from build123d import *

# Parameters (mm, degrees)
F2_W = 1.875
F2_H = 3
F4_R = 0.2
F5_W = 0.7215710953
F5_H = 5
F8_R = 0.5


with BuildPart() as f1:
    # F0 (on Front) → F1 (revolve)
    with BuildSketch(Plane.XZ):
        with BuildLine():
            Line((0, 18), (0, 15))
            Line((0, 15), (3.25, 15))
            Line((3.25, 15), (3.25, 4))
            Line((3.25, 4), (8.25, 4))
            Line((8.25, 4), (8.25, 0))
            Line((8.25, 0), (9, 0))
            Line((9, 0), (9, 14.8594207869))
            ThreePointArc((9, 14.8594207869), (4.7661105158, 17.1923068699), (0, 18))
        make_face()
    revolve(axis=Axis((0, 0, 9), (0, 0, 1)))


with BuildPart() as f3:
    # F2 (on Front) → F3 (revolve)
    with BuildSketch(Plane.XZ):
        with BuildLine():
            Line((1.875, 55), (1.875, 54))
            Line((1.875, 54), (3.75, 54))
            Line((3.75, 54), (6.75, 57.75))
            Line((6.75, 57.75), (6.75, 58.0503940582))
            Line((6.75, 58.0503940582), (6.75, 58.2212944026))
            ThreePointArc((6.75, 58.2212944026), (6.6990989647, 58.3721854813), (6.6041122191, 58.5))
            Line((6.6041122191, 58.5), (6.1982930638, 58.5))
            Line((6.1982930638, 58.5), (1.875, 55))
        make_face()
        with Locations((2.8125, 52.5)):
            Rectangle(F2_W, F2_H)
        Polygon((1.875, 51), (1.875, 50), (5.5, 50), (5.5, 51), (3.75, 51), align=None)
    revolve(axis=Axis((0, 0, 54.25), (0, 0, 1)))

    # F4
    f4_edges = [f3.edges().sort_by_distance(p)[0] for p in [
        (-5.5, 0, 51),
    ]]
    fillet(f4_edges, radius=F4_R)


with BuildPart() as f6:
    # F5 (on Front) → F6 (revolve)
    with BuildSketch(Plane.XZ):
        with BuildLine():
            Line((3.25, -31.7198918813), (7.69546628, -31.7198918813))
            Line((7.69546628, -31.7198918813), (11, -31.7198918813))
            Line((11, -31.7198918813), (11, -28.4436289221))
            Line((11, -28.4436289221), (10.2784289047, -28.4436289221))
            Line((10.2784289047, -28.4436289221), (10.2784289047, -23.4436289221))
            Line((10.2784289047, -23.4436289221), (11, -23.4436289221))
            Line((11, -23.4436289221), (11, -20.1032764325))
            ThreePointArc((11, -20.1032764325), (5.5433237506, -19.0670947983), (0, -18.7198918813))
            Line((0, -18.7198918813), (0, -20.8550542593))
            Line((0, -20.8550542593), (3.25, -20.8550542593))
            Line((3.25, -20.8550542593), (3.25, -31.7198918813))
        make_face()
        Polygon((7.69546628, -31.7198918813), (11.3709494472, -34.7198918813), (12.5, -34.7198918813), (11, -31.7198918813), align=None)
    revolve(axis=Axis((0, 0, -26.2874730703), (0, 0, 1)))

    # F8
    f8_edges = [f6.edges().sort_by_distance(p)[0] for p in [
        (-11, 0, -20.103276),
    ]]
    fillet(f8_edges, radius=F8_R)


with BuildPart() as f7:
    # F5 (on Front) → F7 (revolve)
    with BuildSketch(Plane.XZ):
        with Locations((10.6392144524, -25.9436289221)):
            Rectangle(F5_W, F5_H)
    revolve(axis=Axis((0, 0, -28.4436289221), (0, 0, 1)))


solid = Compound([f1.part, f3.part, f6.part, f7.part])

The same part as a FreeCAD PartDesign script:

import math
import FreeCAD as App
import Part
import Sketcher

V = App.Vector
Q = App.Units.Quantity


def edges_at(feature, points):
    """Names of the edges that pass closest to the given points."""
    edges = feature.Shape.Edges
    near = lambda p: min(range(len(edges)), key=lambda i: edges[i].distToShape(Part.Vertex(*p))[0])
    return sorted({f"Edge{near(p) + 1}" for p in points})

doc = App.newDocument("Part")
body = doc.addObject("PartDesign::Body", "Body")

# Sketch on XZ plane
sketch1 = body.newObject("Sketcher::SketchObject", "Sketch")
sketch1.AttachmentSupport = (doc.getObject("XZ_Plane"), [""])
sketch1.MapMode = "FlatFace"
sketch1.addGeometry([
    Part.LineSegment(V(0, 18, 0), V(0, 15, 0)),  # 0
    Part.LineSegment(V(0, 15, 0), V(3.25, 15, 0)),  # 1
    Part.LineSegment(V(3.25, 15, 0), V(3.25, 4, 0)),  # 2
    Part.LineSegment(V(3.25, 4, 0), V(8.25, 4, 0)),  # 3
    Part.LineSegment(V(8.25, 4, 0), V(8.25, 0, 0)),  # 4
    Part.LineSegment(V(8.25, 0, 0), V(9, 0, 0)),  # 5
    Part.LineSegment(V(9, 0, 0), V(9, 14.859421, 0)),  # 6
    Part.ArcOfCircle(Part.Circle(V(0, 3.534, 0), V(0, 0, 1), 14.466), math.radians(51.526801), math.radians(90)),  # 7
], False)
sketch1.addConstraint([
    Sketcher.Constraint("Coincident", 0, 2, 1, 1),
    Sketcher.Constraint("Coincident", 1, 2, 2, 1),
    Sketcher.Constraint("Coincident", 2, 2, 3, 1),
    Sketcher.Constraint("Coincident", 3, 2, 4, 1),
    Sketcher.Constraint("Coincident", 4, 2, 5, 1),
    Sketcher.Constraint("Coincident", 5, 2, 6, 1),
    Sketcher.Constraint("Coincident", 6, 2, 7, 1),
    Sketcher.Constraint("Coincident", 7, 2, 0, 1),
    Sketcher.Constraint("Vertical", 0),
    Sketcher.Constraint("Horizontal", 1),
    Sketcher.Constraint("Vertical", 2),
    Sketcher.Constraint("Horizontal", 3),
    Sketcher.Constraint("Vertical", 4),
    Sketcher.Constraint("Horizontal", 5),
    Sketcher.Constraint("Vertical", 6),
    Sketcher.Constraint("PointOnObject", 7, 3, -2),
    Sketcher.Constraint("PointOnObject", 0, 2, -2),
    Sketcher.Constraint("PointOnObject", 4, 2, -1),
    Sketcher.Constraint("DistanceX", 3, 1, 3, 2, Q("5 mm")),
    Sketcher.Constraint("DistanceY", 0, 2, 0, 1, Q("3 mm")),
    Sketcher.Constraint("DistanceY", 2, 2, 2, 1, Q("11 mm")),
    Sketcher.Constraint("DistanceY", 4, 2, 4, 1, Q("4 mm")),
    Sketcher.Constraint("DistanceX", -1, 1, 5, 2, Q("9 mm")),
    Sketcher.Constraint("Radius", 7, Q("14.466 mm")),
    Sketcher.Constraint("DistanceX", 1, 1, 1, 2, Q("3.25 mm")),
])
revolution = body.newObject("PartDesign::Revolution", "Revolution")
revolution.Profile = sketch1
revolution.ReferenceAxis = (sketch1, ["V_Axis"])
revolution.Angle = 360
body2 = doc.addObject("PartDesign::Body", "Body001")

# Sketch on XZ plane
sketch2 = body2.newObject("Sketcher::SketchObject", "Sketch001")
sketch2.AttachmentSupport = (doc.getObject("XZ_Plane001"), [""])
sketch2.MapMode = "FlatFace"
sketch2.addGeometry([
    Part.LineSegment(V(1.875, 55, 0), V(1.875, 50, 0)),  # 0
    Part.LineSegment(V(1.875, 50, 0), V(5.5, 50, 0)),  # 1
    Part.LineSegment(V(5.5, 50, 0), V(5.5, 51, 0)),  # 2
    Part.LineSegment(V(5.5, 51, 0), V(3.75, 51, 0)),  # 3
    Part.LineSegment(V(3.75, 51, 0), V(3.75, 54, 0)),  # 4
    Part.LineSegment(V(3.75, 54, 0), V(6.75, 57.75, 0)),  # 5
    Part.LineSegment(V(6.75, 57.75, 0), V(6.75, 58.221294, 0)),  # 6
    Part.ArcOfCircle(Part.Circle(V(6.24759, 58.135844, 0), V(0, 0, 1), 0.509625), math.radians(9.652533), math.radians(45.606871)),  # 7
    Part.LineSegment(V(6.604112, 58.5, 0), V(6.198293, 58.5, 0)),  # 8
    Part.LineSegment(V(6.198293, 58.5, 0), V(1.875, 55, 0)),  # 9
], False)
sketch2.addConstraint([
    Sketcher.Constraint("Coincident", 0, 2, 1, 1),
    Sketcher.Constraint("Coincident", 1, 2, 2, 1),
    Sketcher.Constraint("Coincident", 2, 2, 3, 1),
    Sketcher.Constraint("Coincident", 3, 2, 4, 1),
    Sketcher.Constraint("Coincident", 4, 2, 5, 1),
    Sketcher.Constraint("Coincident", 5, 2, 6, 1),
    Sketcher.Constraint("Coincident", 6, 2, 7, 1),
    Sketcher.Constraint("Coincident", 7, 2, 8, 1),
    Sketcher.Constraint("Coincident", 8, 2, 9, 1),
    Sketcher.Constraint("Coincident", 9, 2, 0, 1),
    Sketcher.Constraint("Vertical", 0),
    Sketcher.Constraint("Horizontal", 1),
    Sketcher.Constraint("Vertical", 2),
    Sketcher.Constraint("Horizontal", 3),
    Sketcher.Constraint("Vertical", 4),
    Sketcher.Constraint("Vertical", 6),
    Sketcher.Constraint("Horizontal", 8),
    Sketcher.Constraint("DistanceY", 0, 2, 0, 1, Q("5 mm")),
    Sketcher.Constraint("DistanceY", 2, 1, 2, 2, Q("1 mm")),
    Sketcher.Constraint("DistanceY", 4, 1, 4, 2, Q("3 mm")),
    Sketcher.Constraint("DistanceY", -1, 1, 0, 2, Q("50 mm")),
    Sketcher.Constraint("DistanceX", 4, 2, 5, 2, Q("3 mm")),
    Sketcher.Constraint("DistanceX", 3, 2, 3, 1, Q("1.75 mm")),
    Sketcher.Constraint("DistanceX", -1, 1, 1, 2, Q("5.5 mm")),
    Sketcher.Constraint("DistanceY", -1, 1, 7, 2, Q("58.5 mm")),
    Sketcher.Constraint("DistanceX", 1, 1, 1, 2, Q("3.625 mm")),
    Sketcher.Constraint("DistanceY", -1, 1, 5, 2, Q("57.75 mm")),
    Sketcher.Constraint("Radius", 7, Q("0.509625 mm")),
    Sketcher.Constraint("DistanceX", 8, 2, 8, 1, Q("0.405819 mm")),
    Sketcher.Constraint("Distance", 9, Q("5.562451 mm")),
    Sketcher.Constraint("DistanceY", 6, 1, 6, 2, Q("0.471294 mm")),
])
revolution2 = body2.newObject("PartDesign::Revolution", "Revolution001")
revolution2.Profile = sketch2
revolution2.ReferenceAxis = (sketch2, ["V_Axis"])
revolution2.Angle = 360
doc.recompute()

fillet = body2.newObject("PartDesign::Fillet", "Fillet")
fillet.Base = (revolution2, edges_at(revolution2, [(-5.5, 0, 51)]))
fillet.Radius = 0.2
body3 = doc.addObject("PartDesign::Body", "Body002")

# Sketch on XZ plane
sketch3 = body3.newObject("Sketcher::SketchObject", "Sketch002")
sketch3.AttachmentSupport = (doc.getObject("XZ_Plane002"), [""])
sketch3.MapMode = "FlatFace"
sketch3.addGeometry([
    Part.LineSegment(V(3.25, -31.719892, 0), V(7.695466, -31.719892, 0)),  # 0
    Part.LineSegment(V(7.695466, -31.719892, 0), V(11.370949, -34.719892, 0)),  # 1
    Part.LineSegment(V(11.370949, -34.719892, 0), V(12.5, -34.719892, 0)),  # 2
    Part.LineSegment(V(12.5, -34.719892, 0), V(11, -31.719892, 0)),  # 3
    Part.LineSegment(V(11, -31.719892, 0), V(11, -28.443629, 0)),  # 4
    Part.LineSegment(V(11, -28.443629, 0), V(10.278429, -28.443629, 0)),  # 5
    Part.LineSegment(V(10.278429, -28.443629, 0), V(10.278429, -23.443629, 0)),  # 6
    Part.LineSegment(V(10.278429, -23.443629, 0), V(11, -23.443629, 0)),  # 7
    Part.LineSegment(V(11, -23.443629, 0), V(11, -20.103276, 0)),  # 8
    Part.ArcOfCircle(Part.Circle(V(0, -63.144905, 0), V(0, 0, 1), 44.425013), math.radians(75.663974), math.radians(90)),  # 9
    Part.LineSegment(V(0, -18.719892, 0), V(0, -20.855054, 0)),  # 10
    Part.LineSegment(V(0, -20.855054, 0), V(3.25, -20.855054, 0)),  # 11
    Part.LineSegment(V(3.25, -20.855054, 0), V(3.25, -31.719892, 0)),  # 12
], False)
sketch3.addConstraint([
    Sketcher.Constraint("Coincident", 0, 2, 1, 1),
    Sketcher.Constraint("Coincident", 1, 2, 2, 1),
    Sketcher.Constraint("Coincident", 2, 2, 3, 1),
    Sketcher.Constraint("Coincident", 3, 2, 4, 1),
    Sketcher.Constraint("Coincident", 4, 2, 5, 1),
    Sketcher.Constraint("Coincident", 5, 2, 6, 1),
    Sketcher.Constraint("Coincident", 6, 2, 7, 1),
    Sketcher.Constraint("Coincident", 7, 2, 8, 1),
    Sketcher.Constraint("Coincident", 8, 2, 9, 1),
    Sketcher.Constraint("Coincident", 9, 2, 10, 1),
    Sketcher.Constraint("Coincident", 10, 2, 11, 1),
    Sketcher.Constraint("Coincident", 11, 2, 12, 1),
    Sketcher.Constraint("Coincident", 12, 2, 0, 1),
    Sketcher.Constraint("Horizontal", 0),
    Sketcher.Constraint("Horizontal", 2),
    Sketcher.Constraint("Vertical", 4),
    Sketcher.Constraint("Horizontal", 5),
    Sketcher.Constraint("Vertical", 6),
    Sketcher.Constraint("Horizontal", 7),
    Sketcher.Constraint("Vertical", 8),
    Sketcher.Constraint("Vertical", 10),
    Sketcher.Constraint("Horizontal", 11),
    Sketcher.Constraint("Vertical", 12),
    Sketcher.Constraint("PointOnObject", 9, 3, -2),
    Sketcher.Constraint("PointOnObject", 9, 2, -2),
    Sketcher.Constraint("Horizontal", 0, 2, 3, 2),
    Sketcher.Constraint("Vertical", 4, 2, 7, 2),
    Sketcher.Constraint("DistanceY", 6, 1, 6, 2, Q("5 mm")),
    Sketcher.Constraint("DistanceX", -1, 1, 3, 2, Q("11 mm")),
    Sketcher.Constraint("DistanceY", 1, 2, 0, 2, Q("3 mm")),
    Sketcher.Constraint("DistanceX", 11, 1, 11, 2, Q("3.25 mm")),
    Sketcher.Constraint("DistanceX", -1, 1, 2, 2, Q("12.5 mm")),
    Sketcher.Constraint("Radius", 9, Q("44.425013 mm")),
    Sketcher.Constraint("DistanceX", 2, 1, 2, 2, Q("1.129051 mm")),
    Sketcher.Constraint("DistanceX", 5, 2, 5, 1, Q("0.721571 mm")),
    Sketcher.Constraint("DistanceX", 0, 1, 0, 2, Q("4.445466 mm")),
    Sketcher.Constraint("DistanceY", 4, 1, 4, 2, Q("3.276263 mm")),
    Sketcher.Constraint("DistanceY", 8, 1, 8, 2, Q("3.340352 mm")),
    Sketcher.Constraint("DistanceY", 10, 2, 10, 1, Q("2.135162 mm")),
    Sketcher.Constraint("DistanceY", 0, 2, -1, 1, Q("31.719892 mm")),
])
revolution3 = body3.newObject("PartDesign::Revolution", "Revolution002")
revolution3.Profile = sketch3
revolution3.ReferenceAxis = (sketch3, ["V_Axis"])
revolution3.Angle = 360
doc.recompute()

fillet2 = body3.newObject("PartDesign::Fillet", "Fillet001")
fillet2.Base = (revolution3, edges_at(revolution3, [(-11, 0, -20.103)]))
fillet2.Radius = 0.5
body4 = doc.addObject("PartDesign::Body", "Body003")

# Sketch on XZ plane
sketch4 = body4.newObject("Sketcher::SketchObject", "Sketch003")
sketch4.AttachmentSupport = (doc.getObject("XZ_Plane003"), [""])
sketch4.MapMode = "FlatFace"
sketch4.addGeometry([
    Part.LineSegment(V(10.278429, -23.443629, 0), V(10.278429, -28.443629, 0)),
    Part.LineSegment(V(10.278429, -28.443629, 0), V(11, -28.443629, 0)),
    Part.LineSegment(V(11, -28.443629, 0), V(11, -23.443629, 0)),
    Part.LineSegment(V(11, -23.443629, 0), V(10.278429, -23.443629, 0)),
], False)
sketch4.addConstraint([
    Sketcher.Constraint("Coincident", 0, 2, 1, 1),
    Sketcher.Constraint("Coincident", 1, 2, 2, 1),
    Sketcher.Constraint("Coincident", 2, 2, 3, 1),
    Sketcher.Constraint("Coincident", 3, 2, 0, 1),
    Sketcher.Constraint("Vertical", 0),
    Sketcher.Constraint("Horizontal", 1),
    Sketcher.Constraint("Vertical", 2),
    Sketcher.Constraint("Horizontal", 3),
    Sketcher.Constraint("DistanceY", 0, 2, 0, 1, Q("5 mm")),
    Sketcher.Constraint("DistanceX", -1, 1, 1, 2, Q("11 mm")),
    Sketcher.Constraint("DistanceX", 1, 1, 1, 2, Q("0.721571 mm")),
    Sketcher.Constraint("DistanceY", 0, 2, -1, 1, Q("28.443629 mm")),
])
revolution4 = body4.newObject("PartDesign::Revolution", "Revolution003")
revolution4.Profile = sketch4
revolution4.ReferenceAxis = (sketch4, ["V_Axis"])
revolution4.Angle = 360

doc.recompute()
